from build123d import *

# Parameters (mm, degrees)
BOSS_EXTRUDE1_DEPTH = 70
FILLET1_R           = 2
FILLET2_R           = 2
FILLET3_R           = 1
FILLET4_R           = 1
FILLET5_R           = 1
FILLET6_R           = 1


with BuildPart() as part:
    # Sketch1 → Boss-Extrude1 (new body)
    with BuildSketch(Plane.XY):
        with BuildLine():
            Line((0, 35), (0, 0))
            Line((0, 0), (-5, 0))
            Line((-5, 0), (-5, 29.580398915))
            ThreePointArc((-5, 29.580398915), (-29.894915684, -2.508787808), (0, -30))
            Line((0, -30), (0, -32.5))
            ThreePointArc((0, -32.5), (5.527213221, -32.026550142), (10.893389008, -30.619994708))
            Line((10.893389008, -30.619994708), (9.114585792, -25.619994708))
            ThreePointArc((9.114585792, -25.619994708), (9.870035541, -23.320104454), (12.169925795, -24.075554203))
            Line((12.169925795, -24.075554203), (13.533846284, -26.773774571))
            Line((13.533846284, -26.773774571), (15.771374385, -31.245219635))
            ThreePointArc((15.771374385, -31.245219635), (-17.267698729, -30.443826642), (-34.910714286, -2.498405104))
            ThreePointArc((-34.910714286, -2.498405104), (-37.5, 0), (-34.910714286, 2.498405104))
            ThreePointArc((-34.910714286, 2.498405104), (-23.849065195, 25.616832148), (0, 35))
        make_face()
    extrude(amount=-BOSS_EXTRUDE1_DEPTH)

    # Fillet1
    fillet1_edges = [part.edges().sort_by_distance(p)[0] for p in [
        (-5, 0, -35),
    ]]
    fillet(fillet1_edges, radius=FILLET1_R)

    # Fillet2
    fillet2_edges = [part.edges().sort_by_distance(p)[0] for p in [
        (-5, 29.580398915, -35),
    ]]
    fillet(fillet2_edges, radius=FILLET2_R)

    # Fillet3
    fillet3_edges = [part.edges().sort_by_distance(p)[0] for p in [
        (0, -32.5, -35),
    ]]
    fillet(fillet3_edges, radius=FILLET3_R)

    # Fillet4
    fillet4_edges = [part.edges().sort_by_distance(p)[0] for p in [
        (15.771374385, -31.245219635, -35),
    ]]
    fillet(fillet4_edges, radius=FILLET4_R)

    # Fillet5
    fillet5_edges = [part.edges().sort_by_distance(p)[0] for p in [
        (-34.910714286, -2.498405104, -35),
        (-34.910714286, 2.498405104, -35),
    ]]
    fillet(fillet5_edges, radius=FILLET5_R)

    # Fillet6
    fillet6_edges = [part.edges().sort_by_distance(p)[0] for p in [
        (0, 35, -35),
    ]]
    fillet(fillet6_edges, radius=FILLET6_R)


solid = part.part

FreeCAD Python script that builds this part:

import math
import FreeCAD as App
import Part
import Sketcher
from FreeCAD import Vector


def edges_at(feature, points):
    """Names of the edges that pass closest to the given points."""
    edges = feature.Shape.Edges
    near = lambda p: min(range(len(edges)), key=lambda i: edges[i].distToShape(Part.Vertex(*p))[0])
    return sorted({f"Edge{near(p) + 1}" for p in points})

doc = App.newDocument("Part")
body = doc.addObject("PartDesign::Body", "Body")

# Sketch on XY plane
sketch1 = body.newObject("Sketcher::SketchObject", "Sketch")
sketch1.AttachmentSupport = (doc.getObject("XY_Plane"), [""])
sketch1.MapMode = "FlatFace"
sketch1.addGeometry(Part.LineSegment(Vector(0, 0, 0), Vector(0, 35, 0)), False)
sketch1.addGeometry(Part.ArcOfCircle(Part.Circle(Vector(0, 0, 0), Vector(0, 0, 1), 35), math.radians(90), math.radians(176)), False)
sketch1.addGeometry(Part.ArcOfCircle(Part.Circle(Vector(-35, 0, 0), Vector(0, 0, 1), 2.5), math.radians(88), math.radians(272)), False)
sketch1.addGeometry(Part.ArcOfCircle(Part.Circle(Vector(0, 0, 0), Vector(0, 0, 1), 35), math.radians(-176), math.radians(-63)), False)
sketch1.addGeometry(Part.LineSegment(Vector(15.8, -31.2, 0), Vector(13.5, -26.8, 0)), False)
sketch1.addGeometry(Part.LineSegment(Vector(13.5, -26.8, 0), Vector(12.2, -24.1, 0)), False)
sketch1.addGeometry(Part.ArcOfCircle(Part.Circle(Vector(10.6, -24.8, 0), Vector(0, 0, 1), 1.7), math.radians(27), math.radians(207)), False)
sketch1.addGeometry(Part.LineSegment(Vector(9.1, -25.6, 0), Vector(10.9, -30.6, 0)), False)
sketch1.addGeometry(Part.ArcOfCircle(Part.Circle(Vector(0, 0, 0), Vector(0, 0, 1), 32.5), math.radians(-90), math.radians(-70.42)), False)
sketch1.addGeometry(Part.LineSegment(Vector(0, -32.5, 0), Vector(0, -30, 0)), False)
sketch1.addGeometry(Part.ArcOfCircle(Part.Circle(Vector(0, 0, 0), Vector(0, 0, 1), 30), math.radians(100), math.radians(270)), False)
sketch1.addGeometry(Part.LineSegment(Vector(-5, 29.6, 0), Vector(-5, 0, 0)), False)
sketch1.addGeometry(Part.LineSegment(Vector(-5, 0, 0), Vector(0, 0, 0)), False)
sketch1.addConstraint(Sketcher.Constraint("Coincident", 0, 2, 1, 1))
sketch1.addConstraint(Sketcher.Constraint("Coincident", 1, 2, 2, 1))
sketch1.addConstraint(Sketcher.Constraint("Coincident", 2, 2, 3, 1))
sketch1.addConstraint(Sketcher.Constraint("Coincident", 3, 2, 4, 1))
sketch1.addConstraint(Sketcher.Constraint("Coincident", 4, 2, 5, 1))
sketch1.addConstraint(Sketcher.Constraint("Tangent", 5, 2, 6, 1))
sketch1.addConstraint(Sketcher.Constraint("Coincident", 6, 2, 7, 1))
sketch1.addConstraint(Sketcher.Constraint("Coincident", 7, 2, 8, 2))
sketch1.addConstraint(Sketcher.Constraint("Coincident", 8, 1, 9, 1))
sketch1.addConstraint(Sketcher.Constraint("Coincident", 9, 2, 10, 2))
sketch1.addConstraint(Sketcher.Constraint("Coincident", 10, 1, 11, 1))
sketch1.addConstraint(Sketcher.Constraint("Coincident", 11, 2, 12, 1))
sketch1.addConstraint(Sketcher.Constraint("Coincident", 12, 2, 0, 1))
sketch1.addConstraint(Sketcher.Constraint("Vertical", 0))
sketch1.addConstraint(Sketcher.Constraint("Vertical", 9))
sketch1.addConstraint(Sketcher.Constraint("Vertical", 11))
sketch1.addConstraint(Sketcher.Constraint("Horizontal", 12))
sketch1.addConstraint(Sketcher.Constraint("Coincident", 1, 3, -1, 1))
sketch1.addConstraint(Sketcher.Constraint("Coincident", 3, 3, -1, 1))
sketch1.addConstraint(Sketcher.Constraint("Coincident", 8, 3, -1, 1))
sketch1.addConstraint(Sketcher.Constraint("Coincident", 10, 3, -1, 1))
sketch1.addConstraint(Sketcher.Constraint("Coincident", 12, 2, -1, 1))
sketch1.addConstraint(Sketcher.Constraint("Equal", 1, 3))
sketch1.addConstraint(Sketcher.Constraint("PointOnObject", 2, 3, -1))
sketch1.addConstraint(Sketcher.Constraint("PointOnObject", 8, 1, -2))
sketch1.addConstraint(Sketcher.Constraint("Radius", 1, 35.0))
sketch1.addConstraint(Sketcher.Constraint("Radius", 10, 30.0))
sketch1.addConstraint(Sketcher.Constraint("Radius", 2, 2.5))
sketch1.addConstraint(Sketcher.Constraint("Radius", 8, 32.5))
sketch1.addConstraint(Sketcher.Constraint("DistanceX", 12, 1, 12, 2, 5.0))
sketch1.addConstraint(Sketcher.Constraint("DistanceX", 2, 3, -1, 1, 35.0))
sketch1.addConstraint(Sketcher.Constraint("DistanceY", 7, 2, 6, 2, 5.0))
sketch1.addConstraint(Sketcher.Constraint("Radius", 6, 1.711753))
sketch1.addConstraint(Sketcher.Constraint("DistanceY", 4, 2, 6, 3, 1.926))
sketch1.addConstraint(Sketcher.Constraint("Distance", 7, 5.30699))
sketch1.addConstraint(Sketcher.Constraint("DistanceY", 3, 2, -1, 1, 31.24522))
sketch1.addConstraint(Sketcher.Constraint("DistanceX", -1, 1, 7, 2, 10.893389))
sketch1.addConstraint(Sketcher.Constraint("DistanceX", 6, 3, 3, 2, 5.129119))
sketch1.addConstraint(Sketcher.Constraint("DistanceX", 6, 3, 4, 2, 2.89159))
pad1 = body.newObject("PartDesign::Pad", "Pad")
pad1.Profile = sketch1
pad1.Length = 70
pad1.Reversed = True
doc.recompute()

fillet = body.newObject("PartDesign::Fillet", "Fillet")
fillet.Base = (pad1, edges_at(pad1, [(-5, 0, -35)]))
fillet.Radius = 2
doc.recompute()

fillet2 = body.newObject("PartDesign::Fillet", "Fillet001")
fillet2.Base = (fillet, edges_at(fillet, [(-5, 29.58, -35)]))
fillet2.Radius = 2
doc.recompute()

fillet3 = body.newObject("PartDesign::Fillet", "Fillet002")
fillet3.Base = (fillet2, edges_at(fillet2, [(0, -32.5, -35)]))
fillet3.Radius = 1
doc.recompute()

fillet4 = body.newObject("PartDesign::Fillet", "Fillet003")
fillet4.Base = (fillet3, edges_at(fillet3, [(15.771, -31.245, -35)]))
fillet4.Radius = 1
doc.recompute()

fillet5 = body.newObject("PartDesign::Fillet", "Fillet004")
fillet5.Base = (fillet4, edges_at(fillet4, [(-34.911, -2.498, -35), (-34.911, 2.498, -35)]))
fillet5.Radius = 1
doc.recompute()

fillet6 = body.newObject("PartDesign::Fillet", "Fillet005")
fillet6.Base = (fillet5, edges_at(fillet5, [(0, 35, -35)]))
fillet6.Radius = 1

doc.recompute()
